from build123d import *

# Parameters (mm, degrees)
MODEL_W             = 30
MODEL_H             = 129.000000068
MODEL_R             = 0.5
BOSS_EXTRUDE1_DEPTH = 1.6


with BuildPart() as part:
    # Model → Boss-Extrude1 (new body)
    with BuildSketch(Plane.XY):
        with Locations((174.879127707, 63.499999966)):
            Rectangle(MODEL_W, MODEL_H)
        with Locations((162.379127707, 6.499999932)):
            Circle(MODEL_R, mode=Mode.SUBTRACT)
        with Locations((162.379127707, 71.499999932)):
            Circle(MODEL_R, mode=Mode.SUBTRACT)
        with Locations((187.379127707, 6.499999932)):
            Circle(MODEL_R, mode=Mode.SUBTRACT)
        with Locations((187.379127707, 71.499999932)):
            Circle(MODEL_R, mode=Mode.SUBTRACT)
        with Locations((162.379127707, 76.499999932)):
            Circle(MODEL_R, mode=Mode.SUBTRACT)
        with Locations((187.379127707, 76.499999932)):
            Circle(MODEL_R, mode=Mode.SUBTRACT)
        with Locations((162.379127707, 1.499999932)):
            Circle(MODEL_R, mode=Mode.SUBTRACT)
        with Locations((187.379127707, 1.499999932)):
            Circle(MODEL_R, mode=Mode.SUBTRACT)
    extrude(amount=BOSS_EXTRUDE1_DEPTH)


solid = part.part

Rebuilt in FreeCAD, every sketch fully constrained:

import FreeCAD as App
import Part
import Sketcher


def add_polygon(sketch, points):
    """Adds a closed chain of lines whose ends are joined by coincident constraints."""
    first, n = sketch.GeometryCount, len(points)
    for a, b in zip(points, points[1:] + points[:1]):
        sketch.addGeometry(Part.LineSegment(App.Vector(*a, 0), App.Vector(*b, 0)), False)
    for i in range(n):
        sketch.addConstraint(Sketcher.Constraint("Coincident", first + i, 2, first + (i + 1) % n, 1))

doc = App.newDocument("Part")
body = doc.addObject("PartDesign::Body", "Body")

sketch1 = body.newObject("Sketcher::SketchObject", "Sketch")
sketch1.AttachmentSupport = (doc.getObject("XY_Plane"), [""])
sketch1.MapMode = "FlatFace"
add_polygon(sketch1, [(159.9, 128), (159.9, -1), (189.9, -1), (189.9, 128)])
sketch1.addGeometry(Part.Circle(App.Vector(162.4, 1.5, 0), App.Vector(0, 0, 1), 0.5), False)
sketch1.addGeometry(Part.Circle(App.Vector(162.4, 6.5, 0), App.Vector(0, 0, 1), 0.5), False)
sketch1.addGeometry(Part.Circle(App.Vector(187.4, 1.5, 0), App.Vector(0, 0, 1), 0.5), False)
sketch1.addGeometry(Part.Circle(App.Vector(187.4, 6.5, 0), App.Vector(0, 0, 1), 0.5), False)
sketch1.addGeometry(Part.Circle(App.Vector(162.4, 71.5, 0), App.Vector(0, 0, 1), 0.5), False)
sketch1.addGeometry(Part.Circle(App.Vector(162.4, 76.5, 0), App.Vector(0, 0, 1), 0.5), False)
sketch1.addGeometry(Part.Circle(App.Vector(187.4, 71.5, 0), App.Vector(0, 0, 1), 0.5), False)
sketch1.addGeometry(Part.Circle(App.Vector(187.4, 76.5, 0), App.Vector(0, 0, 1), 0.5), False)
sketch1.addConstraint([
    Sketcher.Constraint("Vertical", 0),
    Sketcher.Constraint("Horizontal", 1),
    Sketcher.Constraint("Vertical", 2),
    Sketcher.Constraint("Horizontal", 3),
    Sketcher.Constraint("Equal", 4, 5),
    Sketcher.Constraint("Equal", 5, 6),
    Sketcher.Constraint("Equal", 6, 7),
    Sketcher.Constraint("Equal", 7, 8),
    Sketcher.Constraint("Equal", 8, 9),
    Sketcher.Constraint("Equal", 9, 10),
    Sketcher.Constraint("Equal", 10, 11),
    Sketcher.Constraint("Horizontal", 4, 3, 6, 3),
    Sketcher.Constraint("Horizontal", 5, 3, 7, 3),
    Sketcher.Constraint("Horizontal", 8, 3, 10, 3),
    Sketcher.Constraint("Horizontal", 9, 3, 11, 3),
    Sketcher.Constraint("Vertical", 4, 3, 5, 3),
    Sketcher.Constraint("Vertical", 6, 3, 7, 3),
    Sketcher.Constraint("Vertical", 5, 3, 8, 3),
    Sketcher.Constraint("Vertical", 8, 3, 9, 3),
    Sketcher.Constraint("Vertical", 7, 3, 10, 3),
    Sketcher.Constraint("Vertical", 10, 3, 11, 3),
    Sketcher.Constraint("Diameter", 4, 1.0),
    Sketcher.Constraint("DistanceX", 1, 1, 1, 2, 30.0),
    Sketcher.Constraint("DistanceY", 0, 2, 0, 1, 129.0),
    Sketcher.Constraint("DistanceY", 0, 2, -1, 1, 1.0),
    Sketcher.Constraint("DistanceY", 4, 3, 5, 3, 5.0),
    Sketcher.Constraint("DistanceX", 4, 3, 6, 3, 25.0),
    Sketcher.Constraint("DistanceY", 5, 3, 8, 3, 65.0),
    Sketcher.Constraint("DistanceY", 8, 3, 9, 3, 5.0),
    Sketcher.Constraint("DistanceY", -1, 1, 4, 3, 1.5),
    Sketcher.Constraint("DistanceX", 0, 2, 4, 3, 2.5),
    Sketcher.Constraint("DistanceX", -1, 1, 4, 3, 162.379128),
])
pad1 = body.newObject("PartDesign::Pad", "Pad")
pad1.Profile = sketch1
pad1.Length = 1.6

doc.recompute()
